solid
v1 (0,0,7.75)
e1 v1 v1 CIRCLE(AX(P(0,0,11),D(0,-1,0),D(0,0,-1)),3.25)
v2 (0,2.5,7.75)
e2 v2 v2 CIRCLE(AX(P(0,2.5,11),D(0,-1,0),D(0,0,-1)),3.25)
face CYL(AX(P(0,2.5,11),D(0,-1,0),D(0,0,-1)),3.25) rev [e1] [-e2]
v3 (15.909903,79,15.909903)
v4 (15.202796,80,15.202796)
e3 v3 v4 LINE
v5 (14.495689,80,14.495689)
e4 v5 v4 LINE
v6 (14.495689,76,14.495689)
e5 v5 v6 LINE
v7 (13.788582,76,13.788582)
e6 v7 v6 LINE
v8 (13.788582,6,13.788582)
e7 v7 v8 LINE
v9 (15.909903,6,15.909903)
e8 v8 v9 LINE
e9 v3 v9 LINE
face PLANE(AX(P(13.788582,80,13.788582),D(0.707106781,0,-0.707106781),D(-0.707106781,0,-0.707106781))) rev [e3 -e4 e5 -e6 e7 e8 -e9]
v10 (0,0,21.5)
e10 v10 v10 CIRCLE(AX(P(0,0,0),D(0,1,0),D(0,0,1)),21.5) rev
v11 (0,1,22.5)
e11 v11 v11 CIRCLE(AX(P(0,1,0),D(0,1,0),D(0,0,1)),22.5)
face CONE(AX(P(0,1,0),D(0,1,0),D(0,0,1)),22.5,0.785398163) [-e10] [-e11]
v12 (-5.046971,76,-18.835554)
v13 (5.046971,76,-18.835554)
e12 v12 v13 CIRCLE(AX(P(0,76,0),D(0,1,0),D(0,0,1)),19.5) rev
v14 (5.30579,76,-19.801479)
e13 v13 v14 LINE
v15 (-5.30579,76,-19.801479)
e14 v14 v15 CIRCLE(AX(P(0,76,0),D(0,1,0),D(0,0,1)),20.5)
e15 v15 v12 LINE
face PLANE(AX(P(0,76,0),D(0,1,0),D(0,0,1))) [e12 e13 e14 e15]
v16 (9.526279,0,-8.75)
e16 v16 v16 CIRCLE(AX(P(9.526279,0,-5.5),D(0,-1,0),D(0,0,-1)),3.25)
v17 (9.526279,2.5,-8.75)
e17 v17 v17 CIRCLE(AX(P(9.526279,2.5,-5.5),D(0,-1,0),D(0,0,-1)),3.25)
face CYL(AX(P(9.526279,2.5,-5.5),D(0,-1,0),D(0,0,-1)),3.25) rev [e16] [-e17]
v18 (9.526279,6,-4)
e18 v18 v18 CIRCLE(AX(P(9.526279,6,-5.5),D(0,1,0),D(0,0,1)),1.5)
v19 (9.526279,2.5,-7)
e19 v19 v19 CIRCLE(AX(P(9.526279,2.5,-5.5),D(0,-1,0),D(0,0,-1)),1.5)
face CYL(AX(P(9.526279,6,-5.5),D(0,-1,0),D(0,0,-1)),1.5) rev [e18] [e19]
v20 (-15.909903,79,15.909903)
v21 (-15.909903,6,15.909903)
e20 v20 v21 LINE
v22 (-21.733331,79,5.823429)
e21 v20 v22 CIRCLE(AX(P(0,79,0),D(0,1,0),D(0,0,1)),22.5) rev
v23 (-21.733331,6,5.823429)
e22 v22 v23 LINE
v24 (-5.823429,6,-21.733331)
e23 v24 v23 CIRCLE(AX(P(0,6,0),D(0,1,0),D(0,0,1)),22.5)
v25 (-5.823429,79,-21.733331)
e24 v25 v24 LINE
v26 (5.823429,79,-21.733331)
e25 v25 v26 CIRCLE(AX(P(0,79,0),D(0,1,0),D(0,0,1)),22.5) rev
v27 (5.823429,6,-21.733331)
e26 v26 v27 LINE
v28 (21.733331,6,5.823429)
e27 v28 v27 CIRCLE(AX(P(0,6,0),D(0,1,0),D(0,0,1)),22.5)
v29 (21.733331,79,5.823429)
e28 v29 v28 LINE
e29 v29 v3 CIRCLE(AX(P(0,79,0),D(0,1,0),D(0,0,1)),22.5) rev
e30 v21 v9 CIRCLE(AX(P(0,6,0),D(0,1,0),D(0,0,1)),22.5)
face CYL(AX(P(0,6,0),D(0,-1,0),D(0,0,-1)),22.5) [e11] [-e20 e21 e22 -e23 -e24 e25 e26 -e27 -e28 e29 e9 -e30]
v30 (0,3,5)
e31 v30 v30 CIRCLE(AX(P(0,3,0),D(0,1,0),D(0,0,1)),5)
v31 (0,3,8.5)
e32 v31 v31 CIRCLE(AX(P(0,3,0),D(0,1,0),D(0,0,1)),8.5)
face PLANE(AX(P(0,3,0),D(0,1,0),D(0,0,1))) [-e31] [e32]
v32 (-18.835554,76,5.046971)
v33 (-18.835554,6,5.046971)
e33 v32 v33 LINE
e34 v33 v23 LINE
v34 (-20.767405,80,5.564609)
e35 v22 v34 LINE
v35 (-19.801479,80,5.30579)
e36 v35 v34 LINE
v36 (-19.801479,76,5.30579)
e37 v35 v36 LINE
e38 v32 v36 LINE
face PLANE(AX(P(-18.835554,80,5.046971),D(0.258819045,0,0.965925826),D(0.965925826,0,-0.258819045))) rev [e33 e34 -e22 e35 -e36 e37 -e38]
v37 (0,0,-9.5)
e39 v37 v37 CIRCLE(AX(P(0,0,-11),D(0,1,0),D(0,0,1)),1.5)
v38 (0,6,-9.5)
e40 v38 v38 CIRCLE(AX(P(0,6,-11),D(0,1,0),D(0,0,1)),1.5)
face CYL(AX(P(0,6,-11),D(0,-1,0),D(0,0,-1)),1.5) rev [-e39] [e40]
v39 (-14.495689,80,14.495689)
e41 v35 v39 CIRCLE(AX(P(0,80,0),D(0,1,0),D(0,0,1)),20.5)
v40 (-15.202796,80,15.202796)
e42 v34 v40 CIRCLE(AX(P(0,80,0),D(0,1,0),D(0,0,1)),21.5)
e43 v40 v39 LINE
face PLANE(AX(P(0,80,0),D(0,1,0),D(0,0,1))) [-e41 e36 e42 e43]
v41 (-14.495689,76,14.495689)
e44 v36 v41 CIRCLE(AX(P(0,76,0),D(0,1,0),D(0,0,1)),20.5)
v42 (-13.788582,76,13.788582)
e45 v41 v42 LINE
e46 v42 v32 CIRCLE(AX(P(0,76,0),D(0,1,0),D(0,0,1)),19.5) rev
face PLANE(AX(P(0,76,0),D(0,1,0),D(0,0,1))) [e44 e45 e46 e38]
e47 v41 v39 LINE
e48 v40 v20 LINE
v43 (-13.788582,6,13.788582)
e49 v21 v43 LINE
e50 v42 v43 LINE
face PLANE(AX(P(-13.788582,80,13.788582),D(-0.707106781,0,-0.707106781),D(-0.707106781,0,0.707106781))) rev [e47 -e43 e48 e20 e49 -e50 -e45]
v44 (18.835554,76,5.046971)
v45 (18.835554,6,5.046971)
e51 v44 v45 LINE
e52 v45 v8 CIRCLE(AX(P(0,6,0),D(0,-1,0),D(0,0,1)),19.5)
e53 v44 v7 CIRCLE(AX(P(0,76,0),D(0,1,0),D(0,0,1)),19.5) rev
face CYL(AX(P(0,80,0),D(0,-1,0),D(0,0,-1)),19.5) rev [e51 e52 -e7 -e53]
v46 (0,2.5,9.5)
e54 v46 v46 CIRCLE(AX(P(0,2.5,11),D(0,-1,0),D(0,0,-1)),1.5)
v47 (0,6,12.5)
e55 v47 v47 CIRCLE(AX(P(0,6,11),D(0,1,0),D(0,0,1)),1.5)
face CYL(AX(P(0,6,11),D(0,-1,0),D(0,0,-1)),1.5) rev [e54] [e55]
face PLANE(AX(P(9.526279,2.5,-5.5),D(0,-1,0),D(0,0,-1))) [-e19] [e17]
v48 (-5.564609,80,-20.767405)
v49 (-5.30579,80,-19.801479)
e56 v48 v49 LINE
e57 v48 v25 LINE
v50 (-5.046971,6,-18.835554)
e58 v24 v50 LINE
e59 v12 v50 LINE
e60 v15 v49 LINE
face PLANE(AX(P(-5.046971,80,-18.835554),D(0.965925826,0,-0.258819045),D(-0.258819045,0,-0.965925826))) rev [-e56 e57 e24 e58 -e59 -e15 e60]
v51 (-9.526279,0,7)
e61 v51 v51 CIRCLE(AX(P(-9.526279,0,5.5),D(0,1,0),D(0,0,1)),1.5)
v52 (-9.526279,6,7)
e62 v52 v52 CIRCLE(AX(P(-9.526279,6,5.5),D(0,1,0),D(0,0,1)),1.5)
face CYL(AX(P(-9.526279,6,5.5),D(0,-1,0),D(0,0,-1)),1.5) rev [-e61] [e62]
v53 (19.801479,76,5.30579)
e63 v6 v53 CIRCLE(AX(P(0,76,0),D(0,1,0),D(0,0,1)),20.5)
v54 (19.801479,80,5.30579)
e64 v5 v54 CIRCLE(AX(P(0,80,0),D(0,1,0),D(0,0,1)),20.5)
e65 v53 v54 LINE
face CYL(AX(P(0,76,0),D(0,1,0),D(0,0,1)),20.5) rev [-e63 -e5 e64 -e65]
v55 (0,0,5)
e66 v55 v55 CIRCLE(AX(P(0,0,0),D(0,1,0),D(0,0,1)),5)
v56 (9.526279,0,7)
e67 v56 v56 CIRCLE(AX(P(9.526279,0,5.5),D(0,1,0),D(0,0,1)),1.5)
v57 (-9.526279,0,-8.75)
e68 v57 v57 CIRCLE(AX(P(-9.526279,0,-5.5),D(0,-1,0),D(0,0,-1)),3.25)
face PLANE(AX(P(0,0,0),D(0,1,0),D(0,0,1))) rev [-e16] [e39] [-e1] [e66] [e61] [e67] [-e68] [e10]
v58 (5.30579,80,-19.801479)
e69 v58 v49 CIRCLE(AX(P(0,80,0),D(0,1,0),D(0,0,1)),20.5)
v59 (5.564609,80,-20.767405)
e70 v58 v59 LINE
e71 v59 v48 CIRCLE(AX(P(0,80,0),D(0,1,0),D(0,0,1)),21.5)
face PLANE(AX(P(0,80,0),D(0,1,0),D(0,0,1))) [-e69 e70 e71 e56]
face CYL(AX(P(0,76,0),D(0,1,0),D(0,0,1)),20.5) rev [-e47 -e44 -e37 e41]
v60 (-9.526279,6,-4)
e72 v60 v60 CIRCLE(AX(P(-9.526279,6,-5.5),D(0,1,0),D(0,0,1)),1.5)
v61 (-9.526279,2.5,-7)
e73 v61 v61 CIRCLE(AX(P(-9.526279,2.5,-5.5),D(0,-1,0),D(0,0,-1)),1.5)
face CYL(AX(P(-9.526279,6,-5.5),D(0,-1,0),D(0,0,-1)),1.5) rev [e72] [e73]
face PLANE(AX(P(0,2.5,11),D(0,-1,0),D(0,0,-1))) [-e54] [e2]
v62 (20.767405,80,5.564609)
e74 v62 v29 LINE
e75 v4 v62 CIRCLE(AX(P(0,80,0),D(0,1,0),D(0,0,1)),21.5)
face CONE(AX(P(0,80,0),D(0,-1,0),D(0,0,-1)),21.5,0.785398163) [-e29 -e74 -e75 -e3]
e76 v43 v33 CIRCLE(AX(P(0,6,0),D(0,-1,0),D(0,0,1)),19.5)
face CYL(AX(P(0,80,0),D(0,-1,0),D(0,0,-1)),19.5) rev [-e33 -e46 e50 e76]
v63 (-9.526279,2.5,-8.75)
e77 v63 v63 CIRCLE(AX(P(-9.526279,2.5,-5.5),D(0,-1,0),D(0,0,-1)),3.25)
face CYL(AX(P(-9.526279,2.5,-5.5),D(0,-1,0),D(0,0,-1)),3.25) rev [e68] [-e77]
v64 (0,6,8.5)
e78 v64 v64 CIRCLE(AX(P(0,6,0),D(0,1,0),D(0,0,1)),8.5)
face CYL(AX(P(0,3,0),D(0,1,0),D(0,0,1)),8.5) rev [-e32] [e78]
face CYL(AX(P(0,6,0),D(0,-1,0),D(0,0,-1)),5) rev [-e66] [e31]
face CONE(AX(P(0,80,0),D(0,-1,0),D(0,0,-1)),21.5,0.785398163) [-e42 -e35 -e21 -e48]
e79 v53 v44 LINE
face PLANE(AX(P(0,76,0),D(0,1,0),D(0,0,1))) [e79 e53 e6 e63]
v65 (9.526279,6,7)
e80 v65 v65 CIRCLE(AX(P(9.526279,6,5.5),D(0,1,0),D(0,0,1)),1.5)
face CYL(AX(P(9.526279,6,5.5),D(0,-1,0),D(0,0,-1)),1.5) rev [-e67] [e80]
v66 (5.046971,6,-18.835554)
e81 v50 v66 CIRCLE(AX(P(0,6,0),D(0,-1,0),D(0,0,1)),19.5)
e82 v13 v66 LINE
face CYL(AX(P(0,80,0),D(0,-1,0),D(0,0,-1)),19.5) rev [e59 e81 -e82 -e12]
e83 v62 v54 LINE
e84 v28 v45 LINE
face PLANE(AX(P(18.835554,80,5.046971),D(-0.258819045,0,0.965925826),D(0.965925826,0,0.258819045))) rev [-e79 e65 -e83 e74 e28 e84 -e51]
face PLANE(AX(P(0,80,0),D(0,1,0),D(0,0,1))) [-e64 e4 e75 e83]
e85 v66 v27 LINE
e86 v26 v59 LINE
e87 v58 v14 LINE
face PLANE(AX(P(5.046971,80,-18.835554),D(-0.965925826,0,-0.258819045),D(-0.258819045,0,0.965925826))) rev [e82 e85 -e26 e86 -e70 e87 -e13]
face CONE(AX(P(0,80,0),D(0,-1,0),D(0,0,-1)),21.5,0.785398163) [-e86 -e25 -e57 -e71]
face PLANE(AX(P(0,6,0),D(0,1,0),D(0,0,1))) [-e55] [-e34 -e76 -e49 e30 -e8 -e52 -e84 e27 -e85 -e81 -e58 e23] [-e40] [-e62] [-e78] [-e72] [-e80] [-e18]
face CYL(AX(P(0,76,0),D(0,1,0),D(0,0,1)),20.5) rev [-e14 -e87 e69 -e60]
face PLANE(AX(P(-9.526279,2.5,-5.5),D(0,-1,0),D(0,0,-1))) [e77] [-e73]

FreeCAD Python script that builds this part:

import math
import FreeCAD as App
import Part
import Sketcher

V = App.Vector
Q = App.Units.Quantity


def edges_at(feature, points):
    """Names of the edges that pass closest to the given points."""
    edges = feature.Shape.Edges
    near = lambda p: min(range(len(edges)), key=lambda i: edges[i].distToShape(Part.Vertex(*p))[0])
    return sorted({f"Edge{near(p) + 1}" for p in points})

doc = App.newDocument("Part")
params = doc.addObject("Spreadsheet::Sheet", "Params")
for row, (alias, value) in enumerate([
    ("sketch1_diameter", "45 mm"),
    ("sketch1_diameter2", "3 mm"),
    ("sketch1_diameter3", "10 mm"),
    ("pad1_length", "6 mm"),
    ("sketch2_diameter", "17 mm"),
    ("pocket1_length", "3 mm"),
    ("sketch3_diameter", "6.5 mm"),
    ("pocket2_length", "2.5 mm"),
    ("sketch4_radius", "22.5 mm"),
    ("sketch4_radius2", "19.5 mm"),
    ("pad2_length", "74 mm"),
    ("sketch5_diameter", "41 mm"),
    ("pocket3_length", "4 mm"),
    ("chamfer_size", "1 mm"),
], start=1):
    params.set(f"A{row}", alias)
    params.set(f"B{row}", "=" + value)
    params.setAlias(f"B{row}", alias)

body = doc.addObject("PartDesign::Body", "Body")

sketch1 = body.newObject("Sketcher::SketchObject", "Sketch")
sketch1.AttachmentSupport = (doc.getObject("XZ_Plane"), [""])
sketch1.MapMode = "FlatFace"
sketch1.addGeometry([
    Part.Circle(V(0, 0, 0), V(0, 0, 1), 22.5),
    Part.Circle(V(-9.526279, 5.5, 0), V(0, 0, 1), 1.5),
    Part.Circle(V(0, 11, 0), V(0, 0, 1), 1.5),
    Part.Circle(V(9.526279, 5.5, 0), V(0, 0, 1), 1.5),
    Part.Circle(V(-9.526279, -5.5, 0), V(0, 0, 1), 1.5),
    Part.Circle(V(0, 0, 0), V(0, 0, 1), 5),
    Part.Circle(V(9.526279, -5.5, 0), V(0, 0, 1), 1.5),
    Part.Circle(V(0, -11, 0), V(0, 0, 1), 1.5),
], False)
sketch1.addConstraint([
    Sketcher.Constraint("Coincident", 0, 3, -1, 1),
    Sketcher.Constraint("Coincident", 5, 3, -1, 1),
    Sketcher.Constraint("Equal", 1, 2),
    Sketcher.Constraint("Equal", 2, 3),
    Sketcher.Constraint("Equal", 3, 4),
    Sketcher.Constraint("Equal", 4, 6),
    Sketcher.Constraint("Equal", 6, 7),
    Sketcher.Constraint("Symmetric", 3, 3, 4, 3, -1, 1),
    Sketcher.Constraint("Symmetric", 1, 3, 6, 3, -1, 1),
    Sketcher.Constraint("Symmetric", 2, 3, 7, 3, -1, 1),
    Sketcher.Constraint("Symmetric", 1, 3, 3, 3, -2),
    Sketcher.Constraint("PointOnObject", 2, 3, -2),
    Sketcher.Constraint("Diameter", 0, 45.0),
    Sketcher.Constraint("Diameter", 1, 3.0),
    Sketcher.Constraint("Diameter", 5, 10.0),
    Sketcher.Constraint("DistanceY", -1, 1, 2, 3, 11.0),
    Sketcher.Constraint("DistanceY", 4, 3, 1, 3, 11.0),
    Sketcher.Constraint("DistanceX", 1, 3, -1, 1, 9.526279),
])
sketch1.setExpression("Constraints[12]", "Params.sketch1_diameter")
sketch1.setExpression("Constraints[13]", "Params.sketch1_diameter2")
sketch1.setExpression("Constraints[14]", "Params.sketch1_diameter3")
pad1 = body.newObject("PartDesign::Pad", "Pad")
pad1.Profile = sketch1
pad1.setExpression("Length", "Params.pad1_length")
pad1.Reversed = True

sketch2 = body.newObject("Sketcher::SketchObject", "Sketch001")
sketch2.AttachmentSupport = (doc.getObject("XZ_Plane"), [""])
sketch2.MapMode = "FlatFace"
sketch2.AttachmentOffset = App.Placement(V(0, 0, -6), App.Rotation())
sketch2.addGeometry(Part.Circle(V(0, 0, 0), V(0, 0, 1), 8.5), False)
sketch2.addConstraint([
    Sketcher.Constraint("Coincident", 0, 3, -1, 1),
    Sketcher.Constraint("Diameter", 0, 17.0),
])
sketch2.setExpression("Constraints[1]", "Params.sketch2_diameter")
pocket1 = body.newObject("PartDesign::Pocket", "Pocket")
pocket1.Profile = sketch2
pocket1.setExpression("Length", "Params.pocket1_length")
pocket1.Reversed = True

sketch3 = body.newObject("Sketcher::SketchObject", "Sketch002")
sketch3.AttachmentSupport = (doc.getObject("XZ_Plane"), [""])
sketch3.MapMode = "FlatFace"
sketch3.addGeometry([
    Part.Circle(V(0, 11, 0), V(0, 0, 1), 3.25),
    Part.Circle(V(9.526279, -5.5, 0), V(0, 0, 1), 3.25),
    Part.Circle(V(-9.526279, -5.5, 0), V(0, 0, 1), 3.25),
], False)
sketch3.addConstraint([
    Sketcher.Constraint("Equal", 0, 1),
    Sketcher.Constraint("Equal", 1, 2),
    Sketcher.Constraint("Symmetric", 1, 3, 2, 3, -2),
    Sketcher.Constraint("PointOnObject", 0, 3, -2),
    Sketcher.Constraint("Diameter", 0, 6.5),
    Sketcher.Constraint("DistanceY", -1, 1, 0, 3, 11.0),
    Sketcher.Constraint("DistanceY", 1, 3, -1, 1, 5.5),
    Sketcher.Constraint("DistanceX", -1, 1, 1, 3, 9.526279),
])
sketch3.setExpression("Constraints[4]", "Params.sketch3_diameter")
pocket2 = body.newObject("PartDesign::Pocket", "Pocket001")
pocket2.Profile = sketch3
pocket2.setExpression("Length", "Params.pocket2_length")

sketch4 = body.newObject("Sketcher::SketchObject", "Sketch003")
sketch4.AttachmentSupport = (doc.getObject("XZ_Plane"), [""])
sketch4.MapMode = "FlatFace"
sketch4.AttachmentOffset = App.Placement(V(0, 0, -6), App.Rotation())
sketch4.addGeometry([
    Part.LineSegment(V(5.046971, -18.835554, 0), V(5.823429, -21.733331, 0)),
    Part.ArcOfCircle(Part.Circle(V(0, 0, 0), V(0, 0, 1), 22.5), math.radians(-105), math.radians(-75)),
    Part.LineSegment(V(-5.823429, -21.733331, 0), V(-5.046971, -18.835554, 0)),
    Part.ArcOfCircle(Part.Circle(V(0, 0, 0), V(0, 0, 1), 19.5), math.radians(-105), math.radians(-75)),
    Part.LineSegment(V(21.733331, 5.823429, 0), V(18.835554, 5.046971, 0)),
    Part.ArcOfCircle(Part.Circle(V(0, 0, 0), V(0, 0, 1), 19.5), math.radians(15), math.radians(45)),
    Part.LineSegment(V(13.788582, 13.788582, 0), V(15.909903, 15.909903, 0)),
    Part.ArcOfCircle(Part.Circle(V(0, 0, 0), V(0, 0, 1), 22.5), math.radians(15), math.radians(45)),
    Part.LineSegment(V(-15.909903, 15.909903, 0), V(-13.788582, 13.788582, 0)),
    Part.ArcOfCircle(Part.Circle(V(0, 0, 0), V(0, 0, 1), 19.5), math.radians(135), math.radians(165)),
    Part.LineSegment(V(-18.835554, 5.046971, 0), V(-21.733331, 5.823429, 0)),
    Part.ArcOfCircle(Part.Circle(V(0, 0, 0), V(0, 0, 1), 22.5), math.radians(135), math.radians(165)),
], False)
sketch4.addConstraint([
    Sketcher.Constraint("Coincident", 0, 2, 1, 2),
    Sketcher.Constraint("Coincident", 1, 1, 2, 1),
    Sketcher.Constraint("Coincident", 2, 2, 3, 1),
    Sketcher.Constraint("Coincident", 3, 2, 0, 1),
    Sketcher.Constraint("Coincident", 4, 2, 5, 1),
    Sketcher.Constraint("Coincident", 5, 2, 6, 1),
    Sketcher.Constraint("Coincident", 6, 2, 7, 2),
    Sketcher.Constraint("Coincident", 7, 1, 4, 1),
    Sketcher.Constraint("Coincident", 8, 2, 9, 1),
    Sketcher.Constraint("Coincident", 9, 2, 10, 1),
    Sketcher.Constraint("Coincident", 10, 2, 11, 2),
    Sketcher.Constraint("Coincident", 11, 1, 8, 1),
    Sketcher.Constraint("Coincident", 1, 3, -1, 1),
    Sketcher.Constraint("Coincident", 3, 3, -1, 1),
    Sketcher.Constraint("Coincident", 5, 3, -1, 1),
    Sketcher.Constraint("Coincident", 7, 3, -1, 1),
    Sketcher.Constraint("Coincident", 9, 3, -1, 1),
    Sketcher.Constraint("Coincident", 11, 3, -1, 1),
    Sketcher.Constraint("Equal", 3, 5),
    Sketcher.Constraint("Equal", 1, 7),
    Sketcher.Constraint("Equal", 5, 9),
    Sketcher.Constraint("Equal", 7, 11),
    Sketcher.Constraint("Perpendicular", 0, 4),
    Sketcher.Constraint("Perpendicular", 6, 8),
    Sketcher.Constraint("Perpendicular", 2, 10),
    Sketcher.Constraint("Horizontal", 0, 2, 1, 1),
    Sketcher.Constraint("Horizontal", 2, 2, 3, 2),
    Sketcher.Constraint("Horizontal", 5, 2, 8, 2),
    Sketcher.Constraint("Horizontal", 4, 2, 9, 2),
    Sketcher.Constraint("Horizontal", 6, 2, 11, 1),
    Sketcher.Constraint("Radius", 1, 22.5),
    Sketcher.Constraint("Radius", 3, 19.5),
    Sketcher.Constraint("Angle", 0, Q("-75 deg")),
    Sketcher.Constraint("DistanceX", 2, 2, 0, 2, 10.8704),
    Sketcher.Constraint("DistanceY", -1, 1, 4, 2, 5.046971),
    Sketcher.Constraint("DistanceX", 5, 2, 4, 2, 5.046971),
])
sketch4.setExpression("Constraints[30]", "Params.sketch4_radius")
sketch4.setExpression("Constraints[31]", "Params.sketch4_radius2")
pad2 = body.newObject("PartDesign::Pad", "Pad001")
pad2.Profile = sketch4
pad2.setExpression("Length", "Params.pad2_length")
pad2.Reversed = True

sketch5 = body.newObject("Sketcher::SketchObject", "Sketch004")
sketch5.AttachmentSupport = (doc.getObject("XZ_Plane"), [""])
sketch5.MapMode = "FlatFace"
sketch5.AttachmentOffset = App.Placement(V(0, 0, -80), App.Rotation())
sketch5.addGeometry(Part.Circle(V(0, 0, 0), V(0, 0, 1), 20.5), False)
sketch5.addConstraint([
    Sketcher.Constraint("Coincident", 0, 3, -1, 1),
    Sketcher.Constraint("Diameter", 0, 41.0),
])
sketch5.setExpression("Constraints[1]", "Params.sketch5_diameter")
pocket3 = body.newObject("PartDesign::Pocket", "Pocket002")
pocket3.Profile = sketch5
pocket3.setExpression("Length", "Params.pocket3_length")
pocket3.Reversed = True
doc.recompute()

chamfer = body.newObject("PartDesign::Chamfer", "Chamfer")
chamfer.Base = (pocket3, edges_at(pocket3, [
    (-22.5, 0, 0),
    (19.486, 80, 11.25),
    (0, 80, -22.5),
    (-19.486, 80, 11.25),
]))
chamfer.setExpression("Size", "Params.chamfer_size")

doc.recompute()
